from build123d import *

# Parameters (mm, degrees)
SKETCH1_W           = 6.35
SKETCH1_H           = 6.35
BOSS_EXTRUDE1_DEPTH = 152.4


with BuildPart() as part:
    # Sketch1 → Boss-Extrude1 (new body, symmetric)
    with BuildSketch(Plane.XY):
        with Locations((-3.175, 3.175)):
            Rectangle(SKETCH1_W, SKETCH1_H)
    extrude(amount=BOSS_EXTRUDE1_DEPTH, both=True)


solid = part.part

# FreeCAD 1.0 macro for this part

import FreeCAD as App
import Part
import Sketcher
Q = App.Units.Quantity


def add_polygon(sketch, points):
    """Adds a closed chain of lines whose ends are joined by coincident constraints."""
    first, n = sketch.GeometryCount, len(points)
    for a, b in zip(points, points[1:] + points[:1]):
        sketch.addGeometry(Part.LineSegment(App.Vector(*a, 0), App.Vector(*b, 0)), False)
    for i in range(n):
        sketch.addConstraint(Sketcher.Constraint("Coincident", first + i, 2, first + (i + 1) % n, 1))

doc = App.newDocument("Part")
body = doc.addObject("PartDesign::Body", "Body")

sketch1 = body.newObject("Sketcher::SketchObject", "Sketch")
sketch1.AttachmentSupport = (doc.getObject("XY_Plane"), [""])
sketch1.MapMode = "FlatFace"
add_polygon(sketch1, [(-6, 6), (-6, 0), (0, 0), (0, 6)])
sketch1.addConstraint([
    Sketcher.Constraint("Vertical", 0),
    Sketcher.Constraint("Horizontal", 1),
    Sketcher.Constraint("Vertical", 2),
    Sketcher.Constraint("Horizontal", 3),
    Sketcher.Constraint("Coincident", 1, 2, -1, 1),
    Sketcher.Constraint("Equal", 3, 0),
    Sketcher.Constraint("DistanceX", 1, 1, 1, 2, Q("0.25 in")),
])
pad1 = body.newObject("PartDesign::Pad", "Pad")
pad1.Profile = sketch1
pad1.Length = Q("12 in")
pad1.Midplane = True

doc.recompute()
